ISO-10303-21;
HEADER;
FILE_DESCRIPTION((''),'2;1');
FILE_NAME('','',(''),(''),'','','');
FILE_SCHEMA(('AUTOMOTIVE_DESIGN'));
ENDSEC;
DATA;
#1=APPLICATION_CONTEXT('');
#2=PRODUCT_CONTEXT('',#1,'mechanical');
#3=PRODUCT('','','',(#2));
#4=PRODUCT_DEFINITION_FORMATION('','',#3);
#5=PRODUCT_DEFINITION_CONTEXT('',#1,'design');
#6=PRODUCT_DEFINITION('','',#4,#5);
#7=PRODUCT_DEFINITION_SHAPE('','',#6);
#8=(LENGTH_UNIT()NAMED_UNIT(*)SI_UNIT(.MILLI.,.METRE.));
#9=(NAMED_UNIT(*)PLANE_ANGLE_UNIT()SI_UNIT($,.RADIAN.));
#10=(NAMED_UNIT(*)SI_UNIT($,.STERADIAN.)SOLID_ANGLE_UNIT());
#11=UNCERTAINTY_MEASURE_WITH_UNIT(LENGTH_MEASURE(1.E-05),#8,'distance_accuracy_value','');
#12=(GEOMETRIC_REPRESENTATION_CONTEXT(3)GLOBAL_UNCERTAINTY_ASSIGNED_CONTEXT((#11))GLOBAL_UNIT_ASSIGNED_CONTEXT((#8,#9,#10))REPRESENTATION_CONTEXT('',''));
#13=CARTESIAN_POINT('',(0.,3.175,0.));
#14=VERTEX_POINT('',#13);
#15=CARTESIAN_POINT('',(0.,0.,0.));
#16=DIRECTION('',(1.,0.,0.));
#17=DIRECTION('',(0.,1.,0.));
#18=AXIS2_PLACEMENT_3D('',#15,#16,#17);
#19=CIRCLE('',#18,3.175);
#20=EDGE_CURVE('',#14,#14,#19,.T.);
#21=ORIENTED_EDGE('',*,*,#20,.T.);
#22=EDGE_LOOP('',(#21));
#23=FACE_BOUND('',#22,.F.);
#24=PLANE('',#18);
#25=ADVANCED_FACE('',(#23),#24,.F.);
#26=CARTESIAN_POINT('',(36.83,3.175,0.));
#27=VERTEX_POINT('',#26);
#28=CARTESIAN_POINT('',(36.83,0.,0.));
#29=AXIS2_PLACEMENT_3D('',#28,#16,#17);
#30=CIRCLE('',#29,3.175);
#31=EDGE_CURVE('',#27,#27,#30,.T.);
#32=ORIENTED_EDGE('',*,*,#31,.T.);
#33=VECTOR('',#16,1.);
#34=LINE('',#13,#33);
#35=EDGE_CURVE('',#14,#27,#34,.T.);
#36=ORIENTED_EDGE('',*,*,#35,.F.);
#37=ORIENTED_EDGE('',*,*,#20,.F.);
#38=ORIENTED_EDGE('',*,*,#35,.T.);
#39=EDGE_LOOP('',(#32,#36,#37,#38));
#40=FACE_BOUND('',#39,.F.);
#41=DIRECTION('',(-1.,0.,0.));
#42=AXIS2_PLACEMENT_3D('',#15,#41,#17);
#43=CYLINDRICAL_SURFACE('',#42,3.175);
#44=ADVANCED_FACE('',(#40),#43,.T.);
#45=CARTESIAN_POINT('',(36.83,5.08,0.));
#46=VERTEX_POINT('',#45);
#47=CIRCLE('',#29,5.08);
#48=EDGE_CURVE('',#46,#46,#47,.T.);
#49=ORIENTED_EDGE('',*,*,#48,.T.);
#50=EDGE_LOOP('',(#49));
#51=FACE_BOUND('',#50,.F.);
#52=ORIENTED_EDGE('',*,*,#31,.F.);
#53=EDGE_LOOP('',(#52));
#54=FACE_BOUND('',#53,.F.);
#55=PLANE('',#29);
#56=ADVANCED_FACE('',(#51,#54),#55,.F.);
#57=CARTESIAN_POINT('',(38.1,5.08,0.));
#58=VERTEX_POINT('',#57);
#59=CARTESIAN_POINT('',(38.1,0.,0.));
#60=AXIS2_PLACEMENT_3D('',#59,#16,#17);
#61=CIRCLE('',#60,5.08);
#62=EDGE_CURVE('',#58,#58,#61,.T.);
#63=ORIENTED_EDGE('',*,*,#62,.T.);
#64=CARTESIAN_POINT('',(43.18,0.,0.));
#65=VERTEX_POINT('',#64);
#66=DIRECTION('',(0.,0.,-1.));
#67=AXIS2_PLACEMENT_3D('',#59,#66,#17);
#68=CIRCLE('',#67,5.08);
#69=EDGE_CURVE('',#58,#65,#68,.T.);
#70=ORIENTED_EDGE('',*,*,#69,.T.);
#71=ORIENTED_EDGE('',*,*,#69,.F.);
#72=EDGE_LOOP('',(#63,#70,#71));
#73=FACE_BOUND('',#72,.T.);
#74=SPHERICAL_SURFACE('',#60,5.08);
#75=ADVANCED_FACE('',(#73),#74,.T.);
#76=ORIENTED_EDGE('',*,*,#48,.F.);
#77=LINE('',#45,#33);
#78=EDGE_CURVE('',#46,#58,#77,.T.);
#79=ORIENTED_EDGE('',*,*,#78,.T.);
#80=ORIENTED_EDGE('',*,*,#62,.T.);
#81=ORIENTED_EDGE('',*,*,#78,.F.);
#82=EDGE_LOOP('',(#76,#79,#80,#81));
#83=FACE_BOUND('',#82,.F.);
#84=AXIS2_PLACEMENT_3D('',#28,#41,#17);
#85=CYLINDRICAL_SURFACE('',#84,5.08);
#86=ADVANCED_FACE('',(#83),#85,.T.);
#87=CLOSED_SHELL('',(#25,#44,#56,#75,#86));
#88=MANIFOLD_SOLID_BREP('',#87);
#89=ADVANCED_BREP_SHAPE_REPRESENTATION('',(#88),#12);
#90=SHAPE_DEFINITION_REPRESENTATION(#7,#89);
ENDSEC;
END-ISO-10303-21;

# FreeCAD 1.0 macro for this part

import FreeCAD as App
import Part
import Sketcher
Q = App.Units.Quantity


def edges_at(feature, points):
    """Names of the edges that pass closest to the given points."""
    edges = feature.Shape.Edges
    near = lambda p: min(range(len(edges)), key=lambda i: edges[i].distToShape(Part.Vertex(*p))[0])
    return sorted({f"Edge{near(p) + 1}" for p in points})

doc = App.newDocument("Part")
body = doc.addObject("PartDesign::Body", "Body")

# Sketch on YZ plane
sketch1 = doc.addObject("Sketcher::SketchObject", "Sketch")
body.addObject(sketch1)
sketch1.AttachmentSupport = (doc.YZ_Plane, [""])
sketch1.MapMode = "FlatFace"
sketch1.addGeometry(Part.Circle(App.Vector(0, 0, 0), App.Vector(0, 0, 1), 3.175), False)
sketch1.addConstraint([
    Sketcher.Constraint("Coincident", 0, 3, -1, 1),
    Sketcher.Constraint("Diameter", 0, Q("0.25 in")),
])
pad1 = doc.addObject("PartDesign::Pad", "Pad")
body.addObject(pad1)
pad1.Profile = sketch1
pad1.Length = Q("1.45 in")

# Sketch on YZ plane
sketch2 = doc.addObject("Sketcher::SketchObject", "Sketch001")
body.addObject(sketch2)
sketch2.AttachmentSupport = (doc.YZ_Plane, [""])
sketch2.MapMode = "FlatFace"
sketch2.AttachmentOffset = App.Placement(App.Vector(0, 0, 1.45 * 25.4), App.Rotation())
sketch2.addGeometry(Part.Circle(App.Vector(0, 0, 0), App.Vector(0, 0, 1), 5.08), False)
sketch2.addConstraint([
    Sketcher.Constraint("Coincident", 0, 3, -1, 1),
    Sketcher.Constraint("Diameter", 0, Q("0.4 in")),
])
pad2 = doc.addObject("PartDesign::Pad", "Pad001")
body.addObject(pad2)
pad2.Profile = sketch2
pad2.Length = Q("0.25 in")
doc.recompute()

fillet = doc.addObject("PartDesign::Fillet", "Fillet")
body.addObject(fillet)
fillet.Base = (pad2, edges_at(pad2, [(43.18, -5.08, 0)]))
fillet.Radius = Q("0.2 in")

doc.recompute()
